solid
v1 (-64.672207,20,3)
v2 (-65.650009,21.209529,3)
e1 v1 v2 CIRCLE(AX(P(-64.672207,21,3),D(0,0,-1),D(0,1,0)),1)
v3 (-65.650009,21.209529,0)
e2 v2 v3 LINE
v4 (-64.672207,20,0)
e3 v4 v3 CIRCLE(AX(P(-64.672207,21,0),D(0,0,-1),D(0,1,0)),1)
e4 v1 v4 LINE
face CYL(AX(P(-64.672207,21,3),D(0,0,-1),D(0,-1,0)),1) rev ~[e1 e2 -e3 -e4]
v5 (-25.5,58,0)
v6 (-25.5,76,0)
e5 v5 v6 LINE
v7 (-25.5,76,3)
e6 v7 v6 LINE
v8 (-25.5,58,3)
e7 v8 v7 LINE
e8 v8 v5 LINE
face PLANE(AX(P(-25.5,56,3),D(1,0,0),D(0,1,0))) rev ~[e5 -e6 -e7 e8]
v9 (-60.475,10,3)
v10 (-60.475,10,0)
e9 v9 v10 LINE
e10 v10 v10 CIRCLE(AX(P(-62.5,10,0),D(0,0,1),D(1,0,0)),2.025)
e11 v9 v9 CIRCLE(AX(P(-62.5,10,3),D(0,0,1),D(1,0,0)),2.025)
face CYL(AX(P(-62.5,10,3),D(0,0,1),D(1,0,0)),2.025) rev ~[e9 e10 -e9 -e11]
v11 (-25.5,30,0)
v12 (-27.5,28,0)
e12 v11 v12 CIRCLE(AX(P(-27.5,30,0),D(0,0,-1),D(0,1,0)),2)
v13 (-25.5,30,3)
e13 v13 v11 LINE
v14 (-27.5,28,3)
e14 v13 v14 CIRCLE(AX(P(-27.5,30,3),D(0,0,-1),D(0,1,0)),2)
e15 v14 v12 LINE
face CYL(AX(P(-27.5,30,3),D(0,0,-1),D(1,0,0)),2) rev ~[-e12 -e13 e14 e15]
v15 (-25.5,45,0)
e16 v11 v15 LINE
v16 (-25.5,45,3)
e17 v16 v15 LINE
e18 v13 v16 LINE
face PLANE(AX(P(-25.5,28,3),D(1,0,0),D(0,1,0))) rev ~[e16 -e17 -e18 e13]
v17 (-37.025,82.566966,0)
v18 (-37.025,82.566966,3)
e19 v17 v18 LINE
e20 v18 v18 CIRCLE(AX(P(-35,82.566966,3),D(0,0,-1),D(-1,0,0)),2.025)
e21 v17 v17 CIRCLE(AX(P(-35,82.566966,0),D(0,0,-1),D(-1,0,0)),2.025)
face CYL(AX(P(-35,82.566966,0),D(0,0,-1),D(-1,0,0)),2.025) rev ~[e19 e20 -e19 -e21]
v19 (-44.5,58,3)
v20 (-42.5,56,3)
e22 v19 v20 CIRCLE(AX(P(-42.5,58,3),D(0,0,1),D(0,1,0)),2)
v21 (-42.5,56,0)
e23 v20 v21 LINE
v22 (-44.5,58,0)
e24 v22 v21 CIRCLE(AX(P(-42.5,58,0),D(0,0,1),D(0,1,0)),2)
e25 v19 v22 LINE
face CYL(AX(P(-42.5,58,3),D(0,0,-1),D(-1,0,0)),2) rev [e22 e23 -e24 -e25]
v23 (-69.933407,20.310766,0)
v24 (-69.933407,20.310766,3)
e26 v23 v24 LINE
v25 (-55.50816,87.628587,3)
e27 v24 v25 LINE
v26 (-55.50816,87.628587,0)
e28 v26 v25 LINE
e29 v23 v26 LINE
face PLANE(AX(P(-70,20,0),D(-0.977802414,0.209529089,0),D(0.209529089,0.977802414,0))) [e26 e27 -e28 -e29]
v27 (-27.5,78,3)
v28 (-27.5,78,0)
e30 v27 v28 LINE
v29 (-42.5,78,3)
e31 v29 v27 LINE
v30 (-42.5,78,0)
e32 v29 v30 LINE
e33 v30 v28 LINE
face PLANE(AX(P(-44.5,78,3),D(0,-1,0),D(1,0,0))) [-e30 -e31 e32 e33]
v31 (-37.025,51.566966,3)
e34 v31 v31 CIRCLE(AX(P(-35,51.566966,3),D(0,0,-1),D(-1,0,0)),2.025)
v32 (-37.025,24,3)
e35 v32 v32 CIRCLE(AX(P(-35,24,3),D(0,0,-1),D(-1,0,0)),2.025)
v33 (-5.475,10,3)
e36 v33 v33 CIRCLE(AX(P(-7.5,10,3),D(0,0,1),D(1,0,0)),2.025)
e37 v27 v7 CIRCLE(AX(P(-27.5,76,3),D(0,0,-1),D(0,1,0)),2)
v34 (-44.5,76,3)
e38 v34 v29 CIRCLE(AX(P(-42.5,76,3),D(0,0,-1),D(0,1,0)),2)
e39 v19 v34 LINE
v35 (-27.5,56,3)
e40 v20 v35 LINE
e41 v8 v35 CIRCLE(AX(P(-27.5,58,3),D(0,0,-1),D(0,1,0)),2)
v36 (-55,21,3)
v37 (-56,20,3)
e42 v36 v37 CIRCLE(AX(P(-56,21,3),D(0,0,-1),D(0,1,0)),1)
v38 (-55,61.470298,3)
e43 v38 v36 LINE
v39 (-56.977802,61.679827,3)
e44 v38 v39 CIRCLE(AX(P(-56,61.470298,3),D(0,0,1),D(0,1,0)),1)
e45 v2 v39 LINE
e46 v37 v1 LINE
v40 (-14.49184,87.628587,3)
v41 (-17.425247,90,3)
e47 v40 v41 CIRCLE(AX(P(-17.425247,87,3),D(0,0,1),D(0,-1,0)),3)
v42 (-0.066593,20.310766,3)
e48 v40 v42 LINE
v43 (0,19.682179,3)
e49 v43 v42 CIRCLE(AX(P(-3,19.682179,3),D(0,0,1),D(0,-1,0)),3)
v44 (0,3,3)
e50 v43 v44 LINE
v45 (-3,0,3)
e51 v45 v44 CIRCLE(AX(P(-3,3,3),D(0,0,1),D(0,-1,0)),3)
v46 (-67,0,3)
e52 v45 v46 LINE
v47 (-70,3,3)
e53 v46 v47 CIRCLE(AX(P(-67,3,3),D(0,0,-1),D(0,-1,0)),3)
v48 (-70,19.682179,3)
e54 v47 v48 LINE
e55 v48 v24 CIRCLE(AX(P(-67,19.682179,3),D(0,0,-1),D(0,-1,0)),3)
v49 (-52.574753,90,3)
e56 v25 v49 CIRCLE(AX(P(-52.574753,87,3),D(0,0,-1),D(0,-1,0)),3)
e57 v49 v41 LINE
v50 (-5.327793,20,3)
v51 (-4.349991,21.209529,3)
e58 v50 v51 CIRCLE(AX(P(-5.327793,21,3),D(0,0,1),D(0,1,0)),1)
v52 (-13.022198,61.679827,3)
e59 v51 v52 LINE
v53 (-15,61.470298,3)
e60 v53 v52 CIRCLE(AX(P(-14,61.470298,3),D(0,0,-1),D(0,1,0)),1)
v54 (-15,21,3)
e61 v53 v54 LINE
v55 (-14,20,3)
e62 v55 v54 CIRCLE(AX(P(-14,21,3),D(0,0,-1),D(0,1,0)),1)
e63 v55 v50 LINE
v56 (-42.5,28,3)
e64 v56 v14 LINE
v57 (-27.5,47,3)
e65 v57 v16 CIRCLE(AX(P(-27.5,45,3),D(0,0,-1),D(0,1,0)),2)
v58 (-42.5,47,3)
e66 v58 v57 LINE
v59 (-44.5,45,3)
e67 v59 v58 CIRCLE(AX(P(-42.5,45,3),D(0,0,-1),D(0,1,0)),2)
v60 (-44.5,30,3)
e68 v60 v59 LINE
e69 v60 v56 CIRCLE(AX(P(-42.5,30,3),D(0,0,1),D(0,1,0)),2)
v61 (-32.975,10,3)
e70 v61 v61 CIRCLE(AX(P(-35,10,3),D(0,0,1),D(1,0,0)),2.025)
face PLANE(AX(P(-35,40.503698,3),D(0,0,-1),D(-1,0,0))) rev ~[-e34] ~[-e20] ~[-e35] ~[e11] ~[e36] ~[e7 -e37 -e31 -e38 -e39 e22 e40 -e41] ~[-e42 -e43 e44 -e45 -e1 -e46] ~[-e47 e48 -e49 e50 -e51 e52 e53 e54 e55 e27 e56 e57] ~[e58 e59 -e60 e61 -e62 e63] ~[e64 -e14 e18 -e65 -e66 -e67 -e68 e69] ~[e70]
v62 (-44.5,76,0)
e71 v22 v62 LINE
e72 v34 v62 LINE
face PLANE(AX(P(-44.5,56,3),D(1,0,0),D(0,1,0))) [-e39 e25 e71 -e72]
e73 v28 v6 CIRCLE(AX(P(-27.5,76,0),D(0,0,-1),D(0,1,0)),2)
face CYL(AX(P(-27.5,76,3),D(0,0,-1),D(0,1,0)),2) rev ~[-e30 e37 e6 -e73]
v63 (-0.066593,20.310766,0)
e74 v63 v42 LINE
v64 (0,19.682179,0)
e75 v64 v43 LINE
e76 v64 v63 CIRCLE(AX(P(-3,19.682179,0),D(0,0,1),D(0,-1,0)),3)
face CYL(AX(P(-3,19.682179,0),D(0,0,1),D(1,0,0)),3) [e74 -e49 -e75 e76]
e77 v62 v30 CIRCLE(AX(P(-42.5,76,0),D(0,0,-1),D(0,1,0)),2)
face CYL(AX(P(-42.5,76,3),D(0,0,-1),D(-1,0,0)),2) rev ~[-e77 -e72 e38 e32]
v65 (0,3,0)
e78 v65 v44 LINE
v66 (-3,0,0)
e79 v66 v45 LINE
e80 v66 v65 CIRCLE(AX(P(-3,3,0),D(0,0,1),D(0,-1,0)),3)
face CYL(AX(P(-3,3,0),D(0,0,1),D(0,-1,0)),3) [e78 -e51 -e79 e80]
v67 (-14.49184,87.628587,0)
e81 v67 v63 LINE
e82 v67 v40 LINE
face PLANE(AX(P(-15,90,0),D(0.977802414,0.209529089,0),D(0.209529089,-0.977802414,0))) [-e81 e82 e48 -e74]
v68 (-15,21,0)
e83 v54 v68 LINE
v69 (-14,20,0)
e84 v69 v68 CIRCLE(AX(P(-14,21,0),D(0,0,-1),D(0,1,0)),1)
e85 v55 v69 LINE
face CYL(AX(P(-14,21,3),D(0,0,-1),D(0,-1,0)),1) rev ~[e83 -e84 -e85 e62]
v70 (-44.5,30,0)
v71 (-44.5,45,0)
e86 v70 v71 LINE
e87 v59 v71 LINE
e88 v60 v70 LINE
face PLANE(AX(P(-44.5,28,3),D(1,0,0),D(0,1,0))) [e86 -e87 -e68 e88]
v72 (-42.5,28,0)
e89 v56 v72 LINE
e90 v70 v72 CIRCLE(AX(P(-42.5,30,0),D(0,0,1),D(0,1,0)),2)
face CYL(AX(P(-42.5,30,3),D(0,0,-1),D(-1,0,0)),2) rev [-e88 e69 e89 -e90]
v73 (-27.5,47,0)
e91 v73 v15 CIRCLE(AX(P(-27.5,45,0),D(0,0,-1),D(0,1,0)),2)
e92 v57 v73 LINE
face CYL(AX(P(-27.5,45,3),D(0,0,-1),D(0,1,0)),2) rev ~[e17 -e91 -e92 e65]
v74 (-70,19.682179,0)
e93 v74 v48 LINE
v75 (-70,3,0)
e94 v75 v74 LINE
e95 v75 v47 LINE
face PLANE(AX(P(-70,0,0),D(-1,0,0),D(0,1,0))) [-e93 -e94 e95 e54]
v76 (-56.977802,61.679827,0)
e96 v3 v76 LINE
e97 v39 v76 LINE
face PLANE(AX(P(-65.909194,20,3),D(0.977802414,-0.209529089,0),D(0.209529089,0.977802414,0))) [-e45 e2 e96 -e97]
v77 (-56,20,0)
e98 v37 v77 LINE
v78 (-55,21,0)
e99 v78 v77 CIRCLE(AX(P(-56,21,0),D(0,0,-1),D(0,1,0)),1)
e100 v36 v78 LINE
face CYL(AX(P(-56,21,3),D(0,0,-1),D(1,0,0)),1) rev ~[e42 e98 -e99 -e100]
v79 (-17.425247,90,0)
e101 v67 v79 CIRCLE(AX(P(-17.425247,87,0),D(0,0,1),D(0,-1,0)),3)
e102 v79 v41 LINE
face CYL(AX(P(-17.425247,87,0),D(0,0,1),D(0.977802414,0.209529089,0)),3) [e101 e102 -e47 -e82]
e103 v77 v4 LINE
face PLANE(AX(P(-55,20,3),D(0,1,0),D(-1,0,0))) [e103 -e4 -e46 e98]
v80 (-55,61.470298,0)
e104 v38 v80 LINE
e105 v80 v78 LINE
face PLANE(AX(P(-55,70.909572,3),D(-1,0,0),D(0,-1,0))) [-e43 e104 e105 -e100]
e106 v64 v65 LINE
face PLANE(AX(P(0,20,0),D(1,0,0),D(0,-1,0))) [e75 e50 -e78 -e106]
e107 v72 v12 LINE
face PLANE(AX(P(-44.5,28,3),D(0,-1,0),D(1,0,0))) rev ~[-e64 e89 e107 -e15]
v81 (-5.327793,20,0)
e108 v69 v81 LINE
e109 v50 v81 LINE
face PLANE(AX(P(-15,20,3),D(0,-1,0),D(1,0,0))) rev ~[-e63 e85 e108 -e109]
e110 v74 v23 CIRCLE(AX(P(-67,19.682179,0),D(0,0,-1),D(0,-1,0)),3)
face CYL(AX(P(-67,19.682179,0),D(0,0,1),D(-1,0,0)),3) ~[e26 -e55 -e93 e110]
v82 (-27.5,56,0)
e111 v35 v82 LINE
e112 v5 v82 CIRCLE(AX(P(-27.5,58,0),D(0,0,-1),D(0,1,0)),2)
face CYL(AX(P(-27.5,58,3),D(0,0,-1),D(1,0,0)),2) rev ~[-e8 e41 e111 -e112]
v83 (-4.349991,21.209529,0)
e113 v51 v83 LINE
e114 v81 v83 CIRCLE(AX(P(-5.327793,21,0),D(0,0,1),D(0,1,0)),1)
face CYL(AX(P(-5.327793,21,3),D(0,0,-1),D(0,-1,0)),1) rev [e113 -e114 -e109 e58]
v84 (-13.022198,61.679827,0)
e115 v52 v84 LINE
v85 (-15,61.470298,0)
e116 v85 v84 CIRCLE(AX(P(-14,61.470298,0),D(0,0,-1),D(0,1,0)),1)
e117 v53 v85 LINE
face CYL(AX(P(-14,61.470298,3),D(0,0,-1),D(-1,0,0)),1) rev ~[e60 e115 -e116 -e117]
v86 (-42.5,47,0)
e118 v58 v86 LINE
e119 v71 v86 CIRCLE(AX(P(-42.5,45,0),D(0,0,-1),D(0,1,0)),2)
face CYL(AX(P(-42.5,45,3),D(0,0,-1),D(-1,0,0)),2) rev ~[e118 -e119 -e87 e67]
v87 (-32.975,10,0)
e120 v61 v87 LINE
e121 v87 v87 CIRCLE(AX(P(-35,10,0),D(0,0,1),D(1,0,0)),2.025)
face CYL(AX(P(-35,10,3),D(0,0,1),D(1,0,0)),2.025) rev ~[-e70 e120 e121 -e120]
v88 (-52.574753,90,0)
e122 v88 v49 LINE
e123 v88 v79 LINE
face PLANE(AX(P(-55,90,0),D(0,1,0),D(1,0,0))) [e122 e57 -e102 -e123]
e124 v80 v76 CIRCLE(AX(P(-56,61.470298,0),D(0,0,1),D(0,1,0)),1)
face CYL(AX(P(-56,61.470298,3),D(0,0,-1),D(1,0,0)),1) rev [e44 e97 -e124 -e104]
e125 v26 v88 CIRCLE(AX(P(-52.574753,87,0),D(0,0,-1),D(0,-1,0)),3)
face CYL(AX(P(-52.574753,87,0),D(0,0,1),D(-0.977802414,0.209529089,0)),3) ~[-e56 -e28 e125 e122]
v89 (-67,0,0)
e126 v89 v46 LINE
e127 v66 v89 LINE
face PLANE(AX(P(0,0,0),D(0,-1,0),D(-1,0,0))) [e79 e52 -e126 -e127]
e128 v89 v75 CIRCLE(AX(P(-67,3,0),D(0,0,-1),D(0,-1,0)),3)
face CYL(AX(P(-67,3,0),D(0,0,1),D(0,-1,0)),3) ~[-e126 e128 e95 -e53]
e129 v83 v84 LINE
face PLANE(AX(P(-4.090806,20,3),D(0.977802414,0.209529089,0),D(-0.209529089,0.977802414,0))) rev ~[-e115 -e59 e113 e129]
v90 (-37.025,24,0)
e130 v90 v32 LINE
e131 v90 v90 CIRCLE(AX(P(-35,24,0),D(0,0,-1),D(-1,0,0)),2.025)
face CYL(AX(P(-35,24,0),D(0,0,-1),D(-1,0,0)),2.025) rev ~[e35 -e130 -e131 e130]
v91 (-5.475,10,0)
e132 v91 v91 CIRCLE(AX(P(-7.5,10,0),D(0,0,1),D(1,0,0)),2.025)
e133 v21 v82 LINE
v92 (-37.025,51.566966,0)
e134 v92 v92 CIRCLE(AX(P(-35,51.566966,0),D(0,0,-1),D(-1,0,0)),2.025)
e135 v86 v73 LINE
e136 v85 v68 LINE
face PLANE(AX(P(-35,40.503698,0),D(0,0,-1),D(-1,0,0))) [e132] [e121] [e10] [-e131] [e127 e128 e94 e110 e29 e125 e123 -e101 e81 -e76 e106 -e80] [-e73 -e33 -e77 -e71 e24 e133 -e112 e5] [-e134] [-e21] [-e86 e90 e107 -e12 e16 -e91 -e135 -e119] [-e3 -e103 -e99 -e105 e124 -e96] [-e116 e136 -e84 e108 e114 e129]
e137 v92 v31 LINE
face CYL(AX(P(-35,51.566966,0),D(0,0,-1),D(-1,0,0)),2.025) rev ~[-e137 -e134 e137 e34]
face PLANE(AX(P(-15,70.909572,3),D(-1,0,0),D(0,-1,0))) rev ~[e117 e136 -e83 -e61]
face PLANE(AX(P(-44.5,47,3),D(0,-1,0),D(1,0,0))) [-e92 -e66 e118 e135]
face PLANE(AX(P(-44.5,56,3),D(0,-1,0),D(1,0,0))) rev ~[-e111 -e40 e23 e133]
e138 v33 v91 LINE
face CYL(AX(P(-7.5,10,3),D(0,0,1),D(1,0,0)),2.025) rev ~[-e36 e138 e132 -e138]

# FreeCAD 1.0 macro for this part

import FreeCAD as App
import Part
import Sketcher
Q = App.Units.Quantity


def edges_at(feature, points):
    """Names of the edges that pass closest to the given points."""
    edges = feature.Shape.Edges
    near = lambda p: min(range(len(edges)), key=lambda i: edges[i].distToShape(Part.Vertex(*p))[0])
    return sorted({f"Edge{near(p) + 1}" for p in points})


def add_polygon(sketch, points):
    """Adds a closed chain of lines whose ends are joined by coincident constraints."""
    first, n = sketch.GeometryCount, len(points)
    for a, b in zip(points, points[1:] + points[:1]):
        sketch.addGeometry(Part.LineSegment(App.Vector(*a, 0), App.Vector(*b, 0)), False)
    for i in range(n):
        sketch.addConstraint(Sketcher.Constraint("Coincident", first + i, 2, first + (i + 1) % n, 1))

doc = App.newDocument("Part")
body = doc.addObject("PartDesign::Body", "Body")

# Sketch on XY plane
sketch1 = body.newObject("Sketcher::SketchObject", "Sketch")
sketch1.AttachmentSupport = (doc.getObject("XY_Plane"), [""])
sketch1.MapMode = "FlatFace"
add_polygon(sketch1, [(-70, 0), (0, 0), (0, 20), (-15, 90), (-55, 90), (-70, 20)])  # lines 0-5
sketch1.addConstraint([
    Sketcher.Constraint("Horizontal", 0),
    Sketcher.Constraint("Vertical", 1),
    Sketcher.Constraint("Horizontal", 3),
    Sketcher.Constraint("Vertical", 5),
    Sketcher.Constraint("Coincident", 0, 2, -1, 1),
    Sketcher.Constraint("Horizontal", 1, 2, 4, 2),
    Sketcher.Constraint("Equal", 2, 4),
    Sketcher.Constraint("DistanceX", 0, 1, 0, 2, Q("70 mm")),
    Sketcher.Constraint("DistanceX", 3, 2, 3, 1, Q("40 mm")),
    Sketcher.Constraint("DistanceY", 1, 1, 1, 2, Q("20 mm")),
    Sketcher.Constraint("DistanceY", -1, 1, 2, 2, Q("90 mm")),
])
pad1 = body.newObject("PartDesign::Pad", "Pad")
pad1.Profile = sketch1
pad1.Length = 3

# Sketch on XY plane
sketch2 = body.newObject("Sketcher::SketchObject", "Sketch001")
sketch2.AttachmentSupport = (doc.getObject("XY_Plane"), [""])
sketch2.MapMode = "FlatFace"
sketch2.AttachmentOffset = App.Placement(App.Vector(0, 0, 3), App.Rotation())
add_polygon(sketch2, [(-44, 78), (-44, 56), (-26, 56), (-26, 78)])  # lines 0-3
add_polygon(sketch2, [(-44, 47), (-44, 28), (-26, 28), (-26, 47)])  # lines 4-7
add_polygon(sketch2, [(-55, 20), (-55, 71), (-66, 20)])  # lines 8-10
add_polygon(sketch2, [(-4, 20), (-15, 71), (-15, 20)])  # lines 11-13
sketch2.addConstraint([
    Sketcher.Constraint("Vertical", 0),
    Sketcher.Constraint("Horizontal", 1),
    Sketcher.Constraint("Vertical", 2),
    Sketcher.Constraint("Horizontal", 3),
    Sketcher.Constraint("Vertical", 4),
    Sketcher.Constraint("Horizontal", 5),
    Sketcher.Constraint("Vertical", 6),
    Sketcher.Constraint("Horizontal", 7),
    Sketcher.Constraint("Vertical", 8),
    Sketcher.Constraint("Horizontal", 10),
    Sketcher.Constraint("Vertical", 12),
    Sketcher.Constraint("Horizontal", 13),
    Sketcher.Constraint("Horizontal", 8, 2, 11, 2),
    Sketcher.Constraint("Horizontal", 10, 2, 12, 2),
    Sketcher.Constraint("Vertical", 3, 2, 4, 2),
    Sketcher.Constraint("Vertical", 2, 2, 5, 2),
    Sketcher.Constraint("Equal", 10, 13),
    Sketcher.Constraint("Equal", 7, 4),
    Sketcher.Constraint("DistanceX", 1, 1, 1, 2, Q("19 mm")),
    Sketcher.Constraint("DistanceY", 0, 2, 0, 1, Q("22 mm")),
    Sketcher.Constraint("DistanceY", -1, 1, 0, 2, Q("56 mm")),
    Sketcher.Constraint("DistanceY", -1, 1, 4, 2, Q("28 mm")),
    Sketcher.Constraint("DistanceX", 8, 2, -1, 1, Q("55 mm")),
    Sketcher.Constraint("DistanceY", -1, 1, 9, 2, Q("20 mm")),
    Sketcher.Constraint("DistanceX", 11, 2, -1, 1, Q("15 mm")),
    Sketcher.Constraint("DistanceX", 0, 2, -1, 1, Q("44.5 mm")),
    Sketcher.Constraint("DistanceY", 8, 1, 8, 2, Q("50.909572 mm")),
    Sketcher.Constraint("DistanceX", 10, 1, 10, 2, Q("10.909194 mm")),
])
pocket1 = body.newObject("PartDesign::Pocket", "Pocket")
pocket1.Profile = sketch2
pocket1.Length = 3
doc.recompute()

fillet = body.newObject("PartDesign::Fillet", "Fillet")
fillet.Base = (pocket1, edges_at(pocket1, [
    (-4.091, 20, 1.5),
    (-15, 20, 1.5),
    (-15, 70.91, 1.5),
    (-65.909, 20, 1.5),
    (-55, 70.91, 1.5),
    (-55, 20, 1.5),
]))
fillet.Radius = 1
doc.recompute()

fillet2 = body.newObject("PartDesign::Fillet", "Fillet001")
fillet2.Base = (fillet, edges_at(fillet, [
    (-25.5, 47, 1.5),
    (-25.5, 28, 1.5),
    (-44.5, 28, 1.5),
    (-44.5, 47, 1.5),
    (-25.5, 78, 1.5),
    (-25.5, 56, 1.5),
    (-44.5, 56, 1.5),
    (-44.5, 78, 1.5),
]))
fillet2.Radius = 2
doc.recompute()

fillet3 = body.newObject("PartDesign::Fillet", "Fillet002")
fillet3.Base = (fillet2, edges_at(fillet2, [
    (0, 0, 1.5),
    (-70, 0, 1.5),
    (-70, 20, 1.5),
    (-55, 90, 1.5),
    (-15, 90, 1.5),
    (0, 20, 1.5),
]))
fillet3.Radius = 3

# Sketch on XY plane
sketch3 = body.newObject("Sketcher::SketchObject", "Sketch002")
sketch3.AttachmentSupport = (doc.getObject("XY_Plane"), [""])
sketch3.MapMode = "FlatFace"
sketch3.AttachmentOffset = App.Placement(App.Vector(0, 0, 3), App.Rotation())
sketch3.addGeometry([
    Part.Circle(App.Vector(-62.5, 10, 0), App.Vector(0, 0, 1), 2),
    Part.Circle(App.Vector(-35, 10, 0), App.Vector(0, 0, 1), 2),
    Part.Circle(App.Vector(-7.5, 10, 0), App.Vector(0, 0, 1), 2),
], False)
sketch3.addConstraint([
    Sketcher.Constraint("Equal", 0, 1),
    Sketcher.Constraint("Equal", 1, 2),
    Sketcher.Constraint("Horizontal", 0, 3, 1, 3),
    Sketcher.Constraint("Horizontal", 1, 3, 2, 3),
    Sketcher.Constraint("Diameter", 0, Q("4.05 mm")),
    Sketcher.Constraint("DistanceY", -1, 1, 0, 3, Q("10 mm")),
    Sketcher.Constraint("DistanceX", 1, 3, -1, 1, Q("35 mm")),
    Sketcher.Constraint("DistanceX", 0, 3, 2, 3, Q("55 mm")),
    Sketcher.Constraint("DistanceX", 0, 3, -1, 1, Q("62.5 mm")),
])
pocket2 = body.newObject("PartDesign::Pocket", "Pocket001")
pocket2.Profile = sketch3
pocket2.Length = 3

# Sketch on XY plane
sketch4 = body.newObject("Sketcher::SketchObject", "Sketch003")
sketch4.AttachmentSupport = (doc.getObject("XY_Plane"), [""])
sketch4.MapMode = "FlatFace"
sketch4.addGeometry([
    Part.Circle(App.Vector(-35, 82.6, 0), App.Vector(0, 0, 1), 2),
    Part.Circle(App.Vector(-35, 51.6, 0), App.Vector(0, 0, 1), 2),
    Part.Circle(App.Vector(-35, 24, 0), App.Vector(0, 0, 1), 2),
], False)
sketch4.addConstraint([
    Sketcher.Constraint("Equal", 0, 1),
    Sketcher.Constraint("Equal", 1, 2),
    Sketcher.Constraint("Vertical", 0, 3, 1, 3),
    Sketcher.Constraint("Vertical", 1, 3, 2, 3),
    Sketcher.Constraint("Diameter", 0, Q("4.05 mm")),
    Sketcher.Constraint("DistanceX", 0, 3, -1, 1, Q("35 mm")),
    Sketcher.Constraint("DistanceY", -1, 1, 2, 3, Q("24 mm")),
    Sketcher.Constraint("DistanceY", 1, 3, 0, 3, Q("31 mm")),
    Sketcher.Constraint("DistanceY", -1, 1, 0, 3, Q("82.566966 mm")),
])
pocket3 = body.newObject("PartDesign::Pocket", "Pocket002")
pocket3.Profile = sketch4
pocket3.Length = 10
pocket3.Reversed = True

doc.recompute()
